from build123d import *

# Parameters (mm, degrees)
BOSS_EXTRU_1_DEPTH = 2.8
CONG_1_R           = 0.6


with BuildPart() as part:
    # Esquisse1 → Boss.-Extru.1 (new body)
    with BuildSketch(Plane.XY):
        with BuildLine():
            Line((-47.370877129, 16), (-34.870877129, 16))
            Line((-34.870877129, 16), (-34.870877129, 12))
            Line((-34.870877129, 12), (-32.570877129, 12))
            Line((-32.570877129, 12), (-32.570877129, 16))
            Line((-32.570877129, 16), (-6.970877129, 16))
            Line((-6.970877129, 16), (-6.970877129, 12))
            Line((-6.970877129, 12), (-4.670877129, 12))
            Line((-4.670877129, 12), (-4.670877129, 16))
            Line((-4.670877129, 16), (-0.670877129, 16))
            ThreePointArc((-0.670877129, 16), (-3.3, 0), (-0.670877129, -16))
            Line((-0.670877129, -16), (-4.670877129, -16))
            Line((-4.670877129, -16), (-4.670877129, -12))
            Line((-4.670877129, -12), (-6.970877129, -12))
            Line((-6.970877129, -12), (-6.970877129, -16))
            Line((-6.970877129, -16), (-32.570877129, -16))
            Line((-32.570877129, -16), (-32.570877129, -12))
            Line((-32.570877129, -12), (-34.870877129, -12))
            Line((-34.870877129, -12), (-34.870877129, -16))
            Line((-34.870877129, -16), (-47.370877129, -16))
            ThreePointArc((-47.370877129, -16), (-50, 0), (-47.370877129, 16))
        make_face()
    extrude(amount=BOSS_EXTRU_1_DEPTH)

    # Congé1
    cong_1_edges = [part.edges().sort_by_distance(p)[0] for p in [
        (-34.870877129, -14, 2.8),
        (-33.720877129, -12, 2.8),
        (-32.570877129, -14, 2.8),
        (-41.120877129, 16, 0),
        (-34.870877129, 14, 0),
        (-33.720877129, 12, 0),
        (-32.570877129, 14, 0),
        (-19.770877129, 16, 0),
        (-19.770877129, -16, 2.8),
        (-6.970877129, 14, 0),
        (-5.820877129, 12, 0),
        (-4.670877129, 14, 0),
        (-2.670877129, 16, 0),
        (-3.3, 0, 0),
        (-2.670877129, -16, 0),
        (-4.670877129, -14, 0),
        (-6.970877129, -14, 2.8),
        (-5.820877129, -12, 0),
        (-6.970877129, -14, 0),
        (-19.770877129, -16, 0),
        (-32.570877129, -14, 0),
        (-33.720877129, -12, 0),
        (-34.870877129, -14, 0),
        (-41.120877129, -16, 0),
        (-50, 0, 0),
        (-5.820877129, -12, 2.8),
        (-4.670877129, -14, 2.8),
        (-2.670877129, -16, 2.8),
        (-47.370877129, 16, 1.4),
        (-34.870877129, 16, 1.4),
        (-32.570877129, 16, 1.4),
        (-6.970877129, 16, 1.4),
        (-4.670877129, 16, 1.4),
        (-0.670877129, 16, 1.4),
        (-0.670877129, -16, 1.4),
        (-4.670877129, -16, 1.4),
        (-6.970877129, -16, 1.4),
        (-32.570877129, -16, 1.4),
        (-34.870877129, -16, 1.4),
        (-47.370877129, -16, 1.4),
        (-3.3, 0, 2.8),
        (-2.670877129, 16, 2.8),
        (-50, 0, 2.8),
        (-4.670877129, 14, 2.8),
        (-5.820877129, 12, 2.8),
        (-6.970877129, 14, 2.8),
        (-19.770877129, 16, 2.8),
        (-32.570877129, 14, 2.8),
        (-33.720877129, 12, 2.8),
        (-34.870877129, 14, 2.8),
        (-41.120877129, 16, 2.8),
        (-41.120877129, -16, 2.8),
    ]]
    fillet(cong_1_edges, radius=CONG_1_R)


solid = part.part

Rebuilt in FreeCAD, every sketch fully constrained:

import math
import FreeCAD as App
import Part
import Sketcher


def edges_at(feature, points):
    """Names of the edges that pass closest to the given points."""
    edges = feature.Shape.Edges
    near = lambda p: min(range(len(edges)), key=lambda i: edges[i].distToShape(Part.Vertex(*p))[0])
    return sorted({f"Edge{near(p) + 1}" for p in points})

doc = App.newDocument("Part")
params = doc.addObject("Spreadsheet::Sheet", "Params")
for row, (alias, value) in enumerate([
    ("sketch1_radius", "50 mm"),
    ("sketch1_width", "4 mm"),
    ("sketch1_width2", "12.5 mm"),
    ("sketch1_width3", "2.3 mm"),
    ("sketch1_width4", "25.6 mm"),
    ("pad1_length", "2.8 mm"),
    ("fillet_radius", "0.6 mm"),
], start=1):
    params.set(f"A{row}", alias)
    params.set(f"B{row}", "=" + value)
    params.setAlias(f"B{row}", alias)

body = doc.addObject("PartDesign::Body", "Body")

# Sketch on XY plane
sketch1 = body.newObject("Sketcher::SketchObject", "Sketch")
sketch1.AttachmentSupport = (doc.getObject("XY_Plane"), [""])
sketch1.MapMode = "FlatFace"
sketch1.addGeometry(Part.LineSegment(App.Vector(-34.870877, 16, 0), App.Vector(-47.370877, 16, 0)), False)
sketch1.addGeometry(Part.ArcOfCircle(Part.Circle(App.Vector(0, 0, 0), App.Vector(0, 0, 1), 50), math.radians(161.337075), math.radians(198.662925)), False)
sketch1.addGeometry(Part.LineSegment(App.Vector(-47.370877, -16, 0), App.Vector(-34.870877, -16, 0)), False)
sketch1.addGeometry(Part.LineSegment(App.Vector(-34.870877, -16, 0), App.Vector(-34.870877, -12, 0)), False)
sketch1.addGeometry(Part.LineSegment(App.Vector(-34.870877, -12, 0), App.Vector(-32.570877, -12, 0)), False)
sketch1.addGeometry(Part.LineSegment(App.Vector(-32.570877, -12, 0), App.Vector(-32.570877, -16, 0)), False)
sketch1.addGeometry(Part.LineSegment(App.Vector(-32.570877, -16, 0), App.Vector(-6.970877, -16, 0)), False)
sketch1.addGeometry(Part.LineSegment(App.Vector(-6.970877, -16, 0), App.Vector(-6.970877, -12, 0)), False)
sketch1.addGeometry(Part.LineSegment(App.Vector(-6.970877, -12, 0), App.Vector(-4.670877, -12, 0)), False)
sketch1.addGeometry(Part.LineSegment(App.Vector(-4.670877, -12, 0), App.Vector(-4.670877, -16, 0)), False)
sketch1.addGeometry(Part.LineSegment(App.Vector(-4.670877, -16, 0), App.Vector(-0.670877, -16, 0)), False)
sketch1.addGeometry(Part.ArcOfCircle(Part.Circle(App.Vector(46.7, 0, 0), App.Vector(0, 0, 1), 50), math.radians(161.337075), math.radians(198.662925)), False)
sketch1.addGeometry(Part.LineSegment(App.Vector(-0.670877, 16, 0), App.Vector(-4.670877, 16, 0)), False)
sketch1.addGeometry(Part.LineSegment(App.Vector(-4.670877, 16, 0), App.Vector(-4.670877, 12, 0)), False)
sketch1.addGeometry(Part.LineSegment(App.Vector(-4.670877, 12, 0), App.Vector(-6.970877, 12, 0)), False)
sketch1.addGeometry(Part.LineSegment(App.Vector(-6.970877, 12, 0), App.Vector(-6.970877, 16, 0)), False)
sketch1.addGeometry(Part.LineSegment(App.Vector(-6.970877, 16, 0), App.Vector(-32.570877, 16, 0)), False)
sketch1.addGeometry(Part.LineSegment(App.Vector(-32.570877, 16, 0), App.Vector(-32.570877, 12, 0)), False)
sketch1.addGeometry(Part.LineSegment(App.Vector(-32.570877, 12, 0), App.Vector(-34.870877, 12, 0)), False)
sketch1.addGeometry(Part.LineSegment(App.Vector(-34.870877, 12, 0), App.Vector(-34.870877, 16, 0)), False)
sketch1.addConstraint(Sketcher.Constraint("Coincident", 0, 2, 1, 1))
sketch1.addConstraint(Sketcher.Constraint("Coincident", 1, 2, 2, 1))
sketch1.addConstraint(Sketcher.Constraint("Coincident", 2, 2, 3, 1))
sketch1.addConstraint(Sketcher.Constraint("Coincident", 3, 2, 4, 1))
sketch1.addConstraint(Sketcher.Constraint("Coincident", 4, 2, 5, 1))
sketch1.addConstraint(Sketcher.Constraint("Coincident", 5, 2, 6, 1))
sketch1.addConstraint(Sketcher.Constraint("Coincident", 6, 2, 7, 1))
sketch1.addConstraint(Sketcher.Constraint("Coincident", 7, 2, 8, 1))
sketch1.addConstraint(Sketcher.Constraint("Coincident", 8, 2, 9, 1))
sketch1.addConstraint(Sketcher.Constraint("Coincident", 9, 2, 10, 1))
sketch1.addConstraint(Sketcher.Constraint("Coincident", 10, 2, 11, 2))
sketch1.addConstraint(Sketcher.Constraint("Coincident", 11, 1, 12, 1))
sketch1.addConstraint(Sketcher.Constraint("Coincident", 12, 2, 13, 1))
sketch1.addConstraint(Sketcher.Constraint("Coincident", 13, 2, 14, 1))
sketch1.addConstraint(Sketcher.Constraint("Coincident", 14, 2, 15, 1))
sketch1.addConstraint(Sketcher.Constraint("Coincident", 15, 2, 16, 1))
sketch1.addConstraint(Sketcher.Constraint("Coincident", 16, 2, 17, 1))
sketch1.addConstraint(Sketcher.Constraint("Coincident", 17, 2, 18, 1))
sketch1.addConstraint(Sketcher.Constraint("Coincident", 18, 2, 19, 1))
sketch1.addConstraint(Sketcher.Constraint("Coincident", 19, 2, 0, 1))
sketch1.addConstraint(Sketcher.Constraint("Horizontal", 0))
sketch1.addConstraint(Sketcher.Constraint("Horizontal", 2))
sketch1.addConstraint(Sketcher.Constraint("Vertical", 3))
sketch1.addConstraint(Sketcher.Constraint("Horizontal", 4))
sketch1.addConstraint(Sketcher.Constraint("Vertical", 5))
sketch1.addConstraint(Sketcher.Constraint("Horizontal", 6))
sketch1.addConstraint(Sketcher.Constraint("Vertical", 7))
sketch1.addConstraint(Sketcher.Constraint("Horizontal", 8))
sketch1.addConstraint(Sketcher.Constraint("Vertical", 9))
sketch1.addConstraint(Sketcher.Constraint("Horizontal", 10))
sketch1.addConstraint(Sketcher.Constraint("Horizontal", 12))
sketch1.addConstraint(Sketcher.Constraint("Vertical", 13))
sketch1.addConstraint(Sketcher.Constraint("Horizontal", 14))
sketch1.addConstraint(Sketcher.Constraint("Vertical", 15))
sketch1.addConstraint(Sketcher.Constraint("Horizontal", 16))
sketch1.addConstraint(Sketcher.Constraint("Vertical", 17))
sketch1.addConstraint(Sketcher.Constraint("Horizontal", 18))
sketch1.addConstraint(Sketcher.Constraint("Vertical", 19))
sketch1.addConstraint(Sketcher.Constraint("Coincident", 1, 3, -1, 1))
sketch1.addConstraint(Sketcher.Constraint("Equal", 1, 11))
sketch1.addConstraint(Sketcher.Constraint("Symmetric", 10, 2, 11, 1, -1))
sketch1.addConstraint(Sketcher.Constraint("Symmetric", 8, 2, 13, 2, -1))
sketch1.addConstraint(Sketcher.Constraint("Symmetric", 6, 2, 15, 2, -1))
sketch1.addConstraint(Sketcher.Constraint("Symmetric", 4, 2, 17, 2, -1))
sketch1.addConstraint(Sketcher.Constraint("Symmetric", 2, 2, 19, 2, -1))
sketch1.addConstraint(Sketcher.Constraint("Horizontal", 2, 2, 5, 2))
sketch1.addConstraint(Sketcher.Constraint("Horizontal", 4, 2, 7, 2))
sketch1.addConstraint(Sketcher.Constraint("Horizontal", 6, 2, 9, 2))
sketch1.addConstraint(Sketcher.Constraint("Equal", 4, 8))
sketch1.addConstraint(Sketcher.Constraint("Equal", 12, 3))
sketch1.addConstraint(Sketcher.Constraint("Radius", 1, 50.0))
sketch1.addConstraint(Sketcher.Constraint("DistanceX", 10, 1, 10, 2, 4.0))
sketch1.addConstraint(Sketcher.Constraint("DistanceX", 0, 2, 0, 1, 12.5))
sketch1.addConstraint(Sketcher.Constraint("DistanceX", 4, 1, 4, 2, 2.3))
sketch1.addConstraint(Sketcher.Constraint("DistanceX", 6, 1, 6, 2, 25.6))
sketch1.addConstraint(Sketcher.Constraint("DistanceY", -1, 1, 0, 2, 16.0))
sketch1.setExpression("Constraints[50]", "Params.sketch1_radius")
sketch1.setExpression("Constraints[51]", "Params.sketch1_width")
sketch1.setExpression("Constraints[52]", "Params.sketch1_width2")
sketch1.setExpression("Constraints[53]", "Params.sketch1_width3")
sketch1.setExpression("Constraints[54]", "Params.sketch1_width4")
pad1 = body.newObject("PartDesign::Pad", "Pad")
pad1.Profile = sketch1
pad1.setExpression("Length", "Params.pad1_length")
doc.recompute()

fillet = body.newObject("PartDesign::Fillet", "Fillet")
fillet.Base = (pad1, edges_at(pad1, [
    (-34.871, -14, 2.8),
    (-33.721, -12, 2.8),
    (-32.571, -14, 2.8),
    (-41.121, 16, 0),
    (-34.871, 14, 0),
    (-33.721, 12, 0),
    (-32.571, 14, 0),
    (-19.771, 16, 0),
    (-19.771, -16, 2.8),
    (-6.971, 14, 0),
    (-5.821, 12, 0),
    (-4.671, 14, 0),
    (-2.671, 16, 0),
    (-3.3, 0, 0),
    (-2.671, -16, 0),
    (-4.671, -14, 0),
    (-6.971, -14, 2.8),
    (-5.821, -12, 0),
    (-6.971, -14, 0),
    (-19.771, -16, 0),
    (-32.571, -14, 0),
    (-33.721, -12, 0),
    (-34.871, -14, 0),
    (-41.121, -16, 0),
    (-50, 0, 0),
    (-5.821, -12, 2.8),
    (-4.671, -14, 2.8),
    (-2.671, -16, 2.8),
    (-47.371, 16, 1.4),
    (-34.871, 16, 1.4),
    (-32.571, 16, 1.4),
    (-6.971, 16, 1.4),
    (-4.671, 16, 1.4),
    (-0.671, 16, 1.4),
    (-0.671, -16, 1.4),
    (-4.671, -16, 1.4),
    (-6.971, -16, 1.4),
    (-32.571, -16, 1.4),
    (-34.871, -16, 1.4),
    (-47.371, -16, 1.4),
    (-3.3, 0, 2.8),
    (-2.671, 16, 2.8),
    (-50, 0, 2.8),
    (-4.671, 14, 2.8),
    (-5.821, 12, 2.8),
    (-6.971, 14, 2.8),
    (-19.771, 16, 2.8),
    (-32.571, 14, 2.8),
    (-33.721, 12, 2.8),
    (-34.871, 14, 2.8),
    (-41.121, 16, 2.8),
    (-41.121, -16, 2.8),
]))
fillet.setExpression("Radius", "Params.fillet_radius")

doc.recompute()
